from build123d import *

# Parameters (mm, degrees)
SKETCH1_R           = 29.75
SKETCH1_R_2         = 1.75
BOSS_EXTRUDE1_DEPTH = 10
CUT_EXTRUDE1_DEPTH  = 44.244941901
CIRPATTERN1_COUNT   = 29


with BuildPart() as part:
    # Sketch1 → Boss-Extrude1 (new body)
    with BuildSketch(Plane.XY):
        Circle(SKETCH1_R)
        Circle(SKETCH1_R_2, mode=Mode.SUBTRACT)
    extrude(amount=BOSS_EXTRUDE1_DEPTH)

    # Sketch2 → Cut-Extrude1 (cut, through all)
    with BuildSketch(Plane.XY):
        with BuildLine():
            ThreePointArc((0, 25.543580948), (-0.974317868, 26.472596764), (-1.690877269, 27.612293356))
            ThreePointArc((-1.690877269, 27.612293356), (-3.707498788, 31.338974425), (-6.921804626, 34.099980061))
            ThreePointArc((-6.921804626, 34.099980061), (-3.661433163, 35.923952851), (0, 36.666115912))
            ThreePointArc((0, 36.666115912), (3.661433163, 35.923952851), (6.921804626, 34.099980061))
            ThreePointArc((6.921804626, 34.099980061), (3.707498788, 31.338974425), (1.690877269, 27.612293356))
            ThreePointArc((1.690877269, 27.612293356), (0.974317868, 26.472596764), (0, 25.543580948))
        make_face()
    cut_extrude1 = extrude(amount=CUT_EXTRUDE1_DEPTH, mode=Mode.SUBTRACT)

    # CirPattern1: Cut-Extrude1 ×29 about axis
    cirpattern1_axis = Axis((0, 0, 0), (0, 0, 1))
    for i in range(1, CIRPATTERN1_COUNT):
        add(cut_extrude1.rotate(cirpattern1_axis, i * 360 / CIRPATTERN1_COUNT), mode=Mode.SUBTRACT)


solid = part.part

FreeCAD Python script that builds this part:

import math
import FreeCAD as App
import Part
import Sketcher
from FreeCAD import Vector

doc = App.newDocument("Part")
body = doc.addObject("PartDesign::Body", "Body")

sketch1 = body.newObject("Sketcher::SketchObject", "Sketch")
sketch1.AttachmentSupport = (doc.getObject("XY_Plane"), [""])
sketch1.MapMode = "FlatFace"
sketch1.addGeometry([
    Part.Circle(Vector(0, 0, 0), Vector(0, 0, 1), 29.8),
    Part.Circle(Vector(0, 0, 0), Vector(0, 0, 1), 1.8),
], False)
sketch1.addConstraint([
    Sketcher.Constraint("Coincident", 0, 3, -1, 1),
    Sketcher.Constraint("Coincident", 1, 3, -1, 1),
    Sketcher.Constraint("Diameter", 0, 59.5),
    Sketcher.Constraint("Diameter", 1, 3.5),
])
pad1 = body.newObject("PartDesign::Pad", "Pad")
pad1.Profile = sketch1
pad1.Length = 10

sketch2 = body.newObject("Sketcher::SketchObject", "Sketch001")
sketch2.AttachmentSupport = (doc.getObject("XY_Plane"), [""])
sketch2.MapMode = "FlatFace"
sketch2.addGeometry([
    Part.ArcOfCircle(Part.Circle(Vector(3.2, 29.9, 0), Vector(0, 0, 1), 5.4), math.radians(-155), math.radians(-127)),
    Part.ArcOfCircle(Part.Circle(Vector(-3.2, 29.9, 0), Vector(0, 0, 1), 5.4), math.radians(-53), math.radians(-25)),
    Part.ArcOfCircle(Part.Circle(Vector(12.8, 24, 0), Vector(0, 0, 1), 11.7), math.radians(120), math.radians(162)),
    Part.ArcOfCircle(Part.Circle(Vector(-0.5, 24.6, 0), Vector(0, 0, 1), 12.1), math.radians(52), math.radians(87)),
    Part.ArcOfCircle(Part.Circle(Vector(0.5, 24.6, 0), Vector(0, 0, 1), 12.1), math.radians(93), math.radians(128)),
    Part.ArcOfCircle(Part.Circle(Vector(-12.8, 24, 0), Vector(0, 0, 1), 11.7), math.radians(18), math.radians(60)),
], False)
sketch2.addConstraint([
    Sketcher.Constraint("Coincident", 0, 2, 1, 1),
    Sketcher.Constraint("Coincident", 1, 2, 2, 2),
    Sketcher.Constraint("Coincident", 2, 1, 3, 1),
    Sketcher.Constraint("Coincident", 3, 2, 4, 1),
    Sketcher.Constraint("Coincident", 4, 2, 5, 2),
    Sketcher.Constraint("Coincident", 5, 1, 0, 1),
    Sketcher.Constraint("Equal", 0, 1),
    Sketcher.Constraint("Equal", 3, 4),
    Sketcher.Constraint("Equal", 2, 5),
    Sketcher.Constraint("Symmetric", 0, 3, 1, 3, -2),
    Sketcher.Constraint("Symmetric", 3, 3, 4, 3, -2),
    Sketcher.Constraint("Symmetric", 2, 3, 5, 3, -2),
    Sketcher.Constraint("Radius", 0, 5.444091),
    Sketcher.Constraint("Radius", 3, 12.096879),
    Sketcher.Constraint("DistanceX", 1, 2, 0, 3, 1.550001),
    Sketcher.Constraint("Radius", 2, 11.670416),
    Sketcher.Constraint("DistanceY", 2, 3, 3, 3, 0.5677),
    Sketcher.Constraint("DistanceY", 0, 2, 2, 1, 8.556399),
    Sketcher.Constraint("DistanceX", -1, 1, 0, 3, 3.240879),
    Sketcher.Constraint("DistanceY", -1, 1, 0, 3, 29.917919),
    Sketcher.Constraint("DistanceX", -1, 1, 2, 3, 12.79264),
])
pocket1 = body.newObject("PartDesign::Pocket", "Pocket")
pocket1.Profile = sketch2
pocket1.Type = "ThroughAll"
pocket1.Reversed = True
doc.recompute()

polarpattern = body.newObject("PartDesign::PolarPattern", "PolarPattern")
polarpattern.Originals = [pocket1]
polarpattern.Axis = (doc.getObject("Z_Axis"), [""])
polarpattern.Angle = 360
polarpattern.Occurrences = 29
body.Tip = polarpattern

doc.recompute()
